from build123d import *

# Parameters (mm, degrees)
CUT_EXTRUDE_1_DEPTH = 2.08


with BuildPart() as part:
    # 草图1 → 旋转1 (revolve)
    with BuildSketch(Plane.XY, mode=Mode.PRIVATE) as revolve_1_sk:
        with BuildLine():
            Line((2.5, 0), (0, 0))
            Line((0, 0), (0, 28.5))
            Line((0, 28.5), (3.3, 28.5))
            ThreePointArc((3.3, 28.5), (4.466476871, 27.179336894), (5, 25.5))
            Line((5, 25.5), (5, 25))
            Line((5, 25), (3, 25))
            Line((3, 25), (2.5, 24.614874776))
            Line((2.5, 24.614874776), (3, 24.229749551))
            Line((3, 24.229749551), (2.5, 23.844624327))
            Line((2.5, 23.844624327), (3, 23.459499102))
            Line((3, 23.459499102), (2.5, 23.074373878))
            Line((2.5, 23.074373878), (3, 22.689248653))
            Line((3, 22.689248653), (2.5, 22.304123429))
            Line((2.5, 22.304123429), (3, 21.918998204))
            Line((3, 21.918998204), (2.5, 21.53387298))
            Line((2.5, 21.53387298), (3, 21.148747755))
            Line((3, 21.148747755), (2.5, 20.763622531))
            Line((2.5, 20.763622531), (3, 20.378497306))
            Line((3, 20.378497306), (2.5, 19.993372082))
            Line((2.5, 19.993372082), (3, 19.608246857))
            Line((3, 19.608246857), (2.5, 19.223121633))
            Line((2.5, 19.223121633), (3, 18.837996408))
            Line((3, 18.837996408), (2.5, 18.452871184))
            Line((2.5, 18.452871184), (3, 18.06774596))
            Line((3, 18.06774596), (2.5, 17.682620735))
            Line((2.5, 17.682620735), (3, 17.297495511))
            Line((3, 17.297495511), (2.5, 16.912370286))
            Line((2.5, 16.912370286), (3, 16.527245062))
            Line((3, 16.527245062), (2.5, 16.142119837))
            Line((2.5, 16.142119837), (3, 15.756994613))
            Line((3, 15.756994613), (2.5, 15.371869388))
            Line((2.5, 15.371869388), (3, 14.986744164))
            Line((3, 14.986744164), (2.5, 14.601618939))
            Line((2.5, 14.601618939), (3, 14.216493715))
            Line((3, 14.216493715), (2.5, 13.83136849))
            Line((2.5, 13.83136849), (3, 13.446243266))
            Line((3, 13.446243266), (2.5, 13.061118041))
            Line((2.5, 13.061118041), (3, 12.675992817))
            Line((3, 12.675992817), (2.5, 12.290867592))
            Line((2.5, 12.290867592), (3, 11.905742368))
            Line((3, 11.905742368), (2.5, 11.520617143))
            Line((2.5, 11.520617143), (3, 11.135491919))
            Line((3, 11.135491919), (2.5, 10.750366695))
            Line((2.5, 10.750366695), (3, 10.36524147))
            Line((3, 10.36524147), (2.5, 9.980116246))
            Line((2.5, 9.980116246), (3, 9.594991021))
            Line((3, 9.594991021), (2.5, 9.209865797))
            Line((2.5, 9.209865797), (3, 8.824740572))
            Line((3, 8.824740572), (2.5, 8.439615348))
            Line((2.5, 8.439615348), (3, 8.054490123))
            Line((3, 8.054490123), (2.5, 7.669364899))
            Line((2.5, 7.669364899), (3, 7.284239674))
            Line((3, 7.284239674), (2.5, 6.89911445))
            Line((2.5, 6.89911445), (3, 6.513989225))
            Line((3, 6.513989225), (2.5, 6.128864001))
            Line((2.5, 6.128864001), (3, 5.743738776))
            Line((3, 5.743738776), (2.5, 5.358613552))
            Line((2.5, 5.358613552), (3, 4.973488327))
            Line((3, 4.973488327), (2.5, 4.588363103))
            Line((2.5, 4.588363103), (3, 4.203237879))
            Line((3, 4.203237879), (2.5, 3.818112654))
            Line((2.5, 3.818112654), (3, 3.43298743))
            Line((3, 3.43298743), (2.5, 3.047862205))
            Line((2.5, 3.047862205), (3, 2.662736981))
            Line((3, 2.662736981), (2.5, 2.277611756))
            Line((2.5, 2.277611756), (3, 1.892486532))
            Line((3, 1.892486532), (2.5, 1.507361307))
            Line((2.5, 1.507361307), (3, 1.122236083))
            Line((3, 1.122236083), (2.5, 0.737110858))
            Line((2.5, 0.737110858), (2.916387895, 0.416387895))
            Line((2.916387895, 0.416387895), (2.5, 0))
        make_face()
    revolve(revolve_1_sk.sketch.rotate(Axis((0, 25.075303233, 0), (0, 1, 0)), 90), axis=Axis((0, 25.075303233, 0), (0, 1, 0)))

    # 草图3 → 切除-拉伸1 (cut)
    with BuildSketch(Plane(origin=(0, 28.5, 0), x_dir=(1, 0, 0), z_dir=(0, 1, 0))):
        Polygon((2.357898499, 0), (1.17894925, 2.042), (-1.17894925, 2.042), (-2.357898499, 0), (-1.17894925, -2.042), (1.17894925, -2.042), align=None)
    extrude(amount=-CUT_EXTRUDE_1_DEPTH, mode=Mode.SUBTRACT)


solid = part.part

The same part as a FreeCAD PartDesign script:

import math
import FreeCAD as App
import Part
import Sketcher
Q = App.Units.Quantity


def add_polygon(sketch, points):
    """Adds a closed chain of lines whose ends are joined by coincident constraints."""
    first, n = sketch.GeometryCount, len(points)
    for a, b in zip(points, points[1:] + points[:1]):
        sketch.addGeometry(Part.LineSegment(App.Vector(*a, 0), App.Vector(*b, 0)), False)
    for i in range(n):
        sketch.addConstraint(Sketcher.Constraint("Coincident", first + i, 2, first + (i + 1) % n, 1))

doc = App.newDocument("Part")
params = doc.addObject("Spreadsheet::Sheet", "Params")
for row, (alias, value) in enumerate([
    ("sketch1_width", "2 mm"),
    ("sketch1_width2", "2.5 mm"),
    ("sketch1_width3", "3.3 mm"),
    ("sketch1_height", "0.5 mm"),
    ("sketch1_height2", "28.5 mm"),
    ("revolution_angle", "360 deg"),
    ("pocket1_length", "2.08 mm"),
], start=1):
    params.set(f"A{row}", alias)
    params.set(f"B{row}", "=" + value)
    params.setAlias(f"B{row}", alias)

body = doc.addObject("PartDesign::Body", "Body")

# Sketch on XY plane
sketch1 = doc.addObject("Sketcher::SketchObject", "Sketch")
body.addObject(sketch1)
sketch1.AttachmentSupport = (doc.XY_Plane, [""])
sketch1.MapMode = "FlatFace"
sketch1.addGeometry([
    Part.LineSegment(App.Vector(0, 0, 0), App.Vector(2.5, 0, 0)),  # 0
    Part.LineSegment(App.Vector(2.5, 0, 0), App.Vector(2.9, 0.4, 0)),  # 1
    Part.LineSegment(App.Vector(2.9, 0.4, 0), App.Vector(2.5, 0.7, 0)),  # 2
    Part.LineSegment(App.Vector(2.5, 0.7, 0), App.Vector(3, 1.1, 0)),  # 3
    Part.LineSegment(App.Vector(3, 1.1, 0), App.Vector(2.5, 1.5, 0)),  # 4
    Part.LineSegment(App.Vector(2.5, 1.5, 0), App.Vector(3, 1.9, 0)),  # 5
    Part.LineSegment(App.Vector(3, 1.9, 0), App.Vector(2.5, 2.3, 0)),  # 6
    Part.LineSegment(App.Vector(2.5, 2.3, 0), App.Vector(3, 2.7, 0)),  # 7
    Part.LineSegment(App.Vector(3, 2.7, 0), App.Vector(2.5, 3, 0)),  # 8
    Part.LineSegment(App.Vector(2.5, 3, 0), App.Vector(3, 3.4, 0)),  # 9
    Part.LineSegment(App.Vector(3, 3.4, 0), App.Vector(2.5, 3.8, 0)),  # 10
    Part.LineSegment(App.Vector(2.5, 3.8, 0), App.Vector(3, 4.2, 0)),  # 11
    Part.LineSegment(App.Vector(3, 4.2, 0), App.Vector(2.5, 4.6, 0)),  # 12
    Part.LineSegment(App.Vector(2.5, 4.6, 0), App.Vector(3, 5, 0)),  # 13
    Part.LineSegment(App.Vector(3, 5, 0), App.Vector(2.5, 5.4, 0)),  # 14
    Part.LineSegment(App.Vector(2.5, 5.4, 0), App.Vector(3, 5.7, 0)),  # 15
    Part.LineSegment(App.Vector(3, 5.7, 0), App.Vector(2.5, 6.1, 0)),  # 16
    Part.LineSegment(App.Vector(2.5, 6.1, 0), App.Vector(3, 6.5, 0)),  # 17
    Part.LineSegment(App.Vector(3, 6.5, 0), App.Vector(2.5, 6.9, 0)),  # 18
    Part.LineSegment(App.Vector(2.5, 6.9, 0), App.Vector(3, 7.3, 0)),  # 19
    Part.LineSegment(App.Vector(3, 7.3, 0), App.Vector(2.5, 7.7, 0)),  # 20
    Part.LineSegment(App.Vector(2.5, 7.7, 0), App.Vector(3, 8.1, 0)),  # 21
    Part.LineSegment(App.Vector(3, 8.1, 0), App.Vector(2.5, 8.4, 0)),  # 22
    Part.LineSegment(App.Vector(2.5, 8.4, 0), App.Vector(3, 8.8, 0)),  # 23
    Part.LineSegment(App.Vector(3, 8.8, 0), App.Vector(2.5, 9.2, 0)),  # 24
    Part.LineSegment(App.Vector(2.5, 9.2, 0), App.Vector(3, 9.6, 0)),  # 25
    Part.LineSegment(App.Vector(3, 9.6, 0), App.Vector(2.5, 10, 0)),  # 26
    Part.LineSegment(App.Vector(2.5, 10, 0), App.Vector(3, 10.4, 0)),  # 27
    Part.LineSegment(App.Vector(3, 10.4, 0), App.Vector(2.5, 10.8, 0)),  # 28
    Part.LineSegment(App.Vector(2.5, 10.8, 0), App.Vector(3, 11.1, 0)),  # 29
    Part.LineSegment(App.Vector(3, 11.1, 0), App.Vector(2.5, 11.5, 0)),  # 30
    Part.LineSegment(App.Vector(2.5, 11.5, 0), App.Vector(3, 11.9, 0)),  # 31
    Part.LineSegment(App.Vector(3, 11.9, 0), App.Vector(2.5, 12.3, 0)),  # 32
    Part.LineSegment(App.Vector(2.5, 12.3, 0), App.Vector(3, 12.7, 0)),  # 33
    Part.LineSegment(App.Vector(3, 12.7, 0), App.Vector(2.5, 13.1, 0)),  # 34
    Part.LineSegment(App.Vector(2.5, 13.1, 0), App.Vector(3, 13.4, 0)),  # 35
    Part.LineSegment(App.Vector(3, 13.4, 0), App.Vector(2.5, 13.8, 0)),  # 36
    Part.LineSegment(App.Vector(2.5, 13.8, 0), App.Vector(3, 14.2, 0)),  # 37
    Part.LineSegment(App.Vector(3, 14.2, 0), App.Vector(2.5, 14.6, 0)),  # 38
    Part.LineSegment(App.Vector(2.5, 14.6, 0), App.Vector(3, 15, 0)),  # 39
    Part.LineSegment(App.Vector(3, 15, 0), App.Vector(2.5, 15.4, 0)),  # 40
    Part.LineSegment(App.Vector(2.5, 15.4, 0), App.Vector(3, 15.8, 0)),  # 41
    Part.LineSegment(App.Vector(3, 15.8, 0), App.Vector(2.5, 16.1, 0)),  # 42
    Part.LineSegment(App.Vector(2.5, 16.1, 0), App.Vector(3, 16.5, 0)),  # 43
    Part.LineSegment(App.Vector(3, 16.5, 0), App.Vector(2.5, 16.9, 0)),  # 44
    Part.LineSegment(App.Vector(2.5, 16.9, 0), App.Vector(3, 17.3, 0)),  # 45
    Part.LineSegment(App.Vector(3, 17.3, 0), App.Vector(2.5, 17.7, 0)),  # 46
    Part.LineSegment(App.Vector(2.5, 17.7, 0), App.Vector(3, 18.1, 0)),  # 47
    Part.LineSegment(App.Vector(3, 18.1, 0), App.Vector(2.5, 18.5, 0)),  # 48
    Part.LineSegment(App.Vector(2.5, 18.5, 0), App.Vector(3, 18.8, 0)),  # 49
    Part.LineSegment(App.Vector(3, 18.8, 0), App.Vector(2.5, 19.2, 0)),  # 50
    Part.LineSegment(App.Vector(2.5, 19.2, 0), App.Vector(3, 19.6, 0)),  # 51
    Part.LineSegment(App.Vector(3, 19.6, 0), App.Vector(2.5, 20, 0)),  # 52
    Part.LineSegment(App.Vector(2.5, 20, 0), App.Vector(3, 20.4, 0)),  # 53
    Part.LineSegment(App.Vector(3, 20.4, 0), App.Vector(2.5, 20.8, 0)),  # 54
    Part.LineSegment(App.Vector(2.5, 20.8, 0), App.Vector(3, 21.1, 0)),  # 55
    Part.LineSegment(App.Vector(3, 21.1, 0), App.Vector(2.5, 21.5, 0)),  # 56
    Part.LineSegment(App.Vector(2.5, 21.5, 0), App.Vector(3, 21.9, 0)),  # 57
    Part.LineSegment(App.Vector(3, 21.9, 0), App.Vector(2.5, 22.3, 0)),  # 58
    Part.LineSegment(App.Vector(2.5, 22.3, 0), App.Vector(3, 22.7, 0)),  # 59
    Part.LineSegment(App.Vector(3, 22.7, 0), App.Vector(2.5, 23.1, 0)),  # 60
    Part.LineSegment(App.Vector(2.5, 23.1, 0), App.Vector(3, 23.5, 0)),  # 61
    Part.LineSegment(App.Vector(3, 23.5, 0), App.Vector(2.5, 23.8, 0)),  # 62
    Part.LineSegment(App.Vector(2.5, 23.8, 0), App.Vector(3, 24.2, 0)),  # 63
    Part.LineSegment(App.Vector(3, 24.2, 0), App.Vector(2.5, 24.6, 0)),  # 64
    Part.LineSegment(App.Vector(2.5, 24.6, 0), App.Vector(3, 25, 0)),  # 65
    Part.LineSegment(App.Vector(3, 25, 0), App.Vector(5, 25, 0)),  # 66
    Part.LineSegment(App.Vector(5, 25, 0), App.Vector(5, 25.5, 0)),  # 67
    Part.ArcOfCircle(Part.Circle(App.Vector(0.8, 25.1, 0), App.Vector(0, 0, 1), 4.3), math.radians(6), math.radians(53)),  # 68
    Part.LineSegment(App.Vector(3.3, 28.5, 0), App.Vector(0, 28.5, 0)),  # 69
    Part.LineSegment(App.Vector(0, 28.5, 0), App.Vector(0, 0, 0)),  # 70
], False)
sketch1.addConstraint([
    Sketcher.Constraint("Coincident", 0, 2, 1, 1),
    Sketcher.Constraint("Coincident", 1, 2, 2, 1),
    Sketcher.Constraint("Coincident", 2, 2, 3, 1),
    Sketcher.Constraint("Coincident", 3, 2, 4, 1),
    Sketcher.Constraint("Coincident", 4, 2, 5, 1),
    Sketcher.Constraint("Coincident", 5, 2, 6, 1),
    Sketcher.Constraint("Coincident", 6, 2, 7, 1),
    Sketcher.Constraint("Coincident", 7, 2, 8, 1),
    Sketcher.Constraint("Coincident", 8, 2, 9, 1),
    Sketcher.Constraint("Coincident", 9, 2, 10, 1),
    Sketcher.Constraint("Coincident", 10, 2, 11, 1),
    Sketcher.Constraint("Coincident", 11, 2, 12, 1),
    Sketcher.Constraint("Coincident", 12, 2, 13, 1),
    Sketcher.Constraint("Coincident", 13, 2, 14, 1),
    Sketcher.Constraint("Coincident", 14, 2, 15, 1),
    Sketcher.Constraint("Coincident", 15, 2, 16, 1),
    Sketcher.Constraint("Coincident", 16, 2, 17, 1),
    Sketcher.Constraint("Coincident", 17, 2, 18, 1),
    Sketcher.Constraint("Coincident", 18, 2, 19, 1),
    Sketcher.Constraint("Coincident", 19, 2, 20, 1),
    Sketcher.Constraint("Coincident", 20, 2, 21, 1),
    Sketcher.Constraint("Coincident", 21, 2, 22, 1),
    Sketcher.Constraint("Coincident", 22, 2, 23, 1),
    Sketcher.Constraint("Coincident", 23, 2, 24, 1),
    Sketcher.Constraint("Coincident", 24, 2, 25, 1),
    Sketcher.Constraint("Coincident", 25, 2, 26, 1),
    Sketcher.Constraint("Coincident", 26, 2, 27, 1),
    Sketcher.Constraint("Coincident", 27, 2, 28, 1),
    Sketcher.Constraint("Coincident", 28, 2, 29, 1),
    Sketcher.Constraint("Coincident", 29, 2, 30, 1),
    Sketcher.Constraint("Coincident", 30, 2, 31, 1),
    Sketcher.Constraint("Coincident", 31, 2, 32, 1),
    Sketcher.Constraint("Coincident", 32, 2, 33, 1),
    Sketcher.Constraint("Coincident", 33, 2, 34, 1),
    Sketcher.Constraint("Coincident", 34, 2, 35, 1),
    Sketcher.Constraint("Coincident", 35, 2, 36, 1),
    Sketcher.Constraint("Coincident", 36, 2, 37, 1),
    Sketcher.Constraint("Coincident", 37, 2, 38, 1),
    Sketcher.Constraint("Coincident", 38, 2, 39, 1),
    Sketcher.Constraint("Coincident", 39, 2, 40, 1),
    Sketcher.Constraint("Coincident", 40, 2, 41, 1),
    Sketcher.Constraint("Coincident", 41, 2, 42, 1),
    Sketcher.Constraint("Coincident", 42, 2, 43, 1),
    Sketcher.Constraint("Coincident", 43, 2, 44, 1),
    Sketcher.Constraint("Coincident", 44, 2, 45, 1),
    Sketcher.Constraint("Coincident", 45, 2, 46, 1),
    Sketcher.Constraint("Coincident", 46, 2, 47, 1),
    Sketcher.Constraint("Coincident", 47, 2, 48, 1),
    Sketcher.Constraint("Coincident", 48, 2, 49, 1),
    Sketcher.Constraint("Coincident", 49, 2, 50, 1),
    Sketcher.Constraint("Coincident", 50, 2, 51, 1),
    Sketcher.Constraint("Coincident", 51, 2, 52, 1),
    Sketcher.Constraint("Coincident", 52, 2, 53, 1),
    Sketcher.Constraint("Coincident", 53, 2, 54, 1),
    Sketcher.Constraint("Coincident", 54, 2, 55, 1),
    Sketcher.Constraint("Coincident", 55, 2, 56, 1),
    Sketcher.Constraint("Coincident", 56, 2, 57, 1),
    Sketcher.Constraint("Coincident", 57, 2, 58, 1),
    Sketcher.Constraint("Coincident", 58, 2, 59, 1),
    Sketcher.Constraint("Coincident", 59, 2, 60, 1),
    Sketcher.Constraint("Coincident", 60, 2, 61, 1),
    Sketcher.Constraint("Coincident", 61, 2, 62, 1),
    Sketcher.Constraint("Coincident", 62, 2, 63, 1),
    Sketcher.Constraint("Coincident", 63, 2, 64, 1),
    Sketcher.Constraint("Coincident", 64, 2, 65, 1),
    Sketcher.Constraint("Coincident", 65, 2, 66, 1),
    Sketcher.Constraint("Coincident", 66, 2, 67, 1),
    Sketcher.Constraint("Coincident", 67, 2, 68, 1),
    Sketcher.Constraint("Coincident", 68, 2, 69, 1),
    Sketcher.Constraint("Coincident", 69, 2, 70, 1),
    Sketcher.Constraint("Coincident", 70, 2, 0, 1),
    Sketcher.Constraint("Horizontal", 0),
    Sketcher.Constraint("Horizontal", 66),
    Sketcher.Constraint("Vertical", 67),
    Sketcher.Constraint("Horizontal", 69),
    Sketcher.Constraint("Vertical", 70),
    Sketcher.Constraint("Coincident", 70, 2, -1, 1),
    Sketcher.Constraint("Parallel", 2, 4),
    Sketcher.Constraint("Parallel", 3, 5),
    Sketcher.Constraint("Parallel", 4, 6),
    Sketcher.Constraint("Parallel", 5, 7),
    Sketcher.Constraint("Parallel", 6, 8),
    Sketcher.Constraint("Parallel", 7, 9),
    Sketcher.Constraint("Parallel", 8, 10),
    Sketcher.Constraint("Parallel", 9, 11),
    Sketcher.Constraint("Parallel", 10, 12),
    Sketcher.Constraint("Parallel", 11, 13),
    Sketcher.Constraint("Parallel", 12, 14),
    Sketcher.Constraint("Parallel", 13, 15),
    Sketcher.Constraint("Parallel", 14, 16),
    Sketcher.Constraint("Parallel", 15, 17),
    Sketcher.Constraint("Parallel", 16, 18),
    Sketcher.Constraint("Parallel", 17, 19),
    Sketcher.Constraint("Parallel", 18, 20),
    Sketcher.Constraint("Parallel", 19, 21),
    Sketcher.Constraint("Parallel", 20, 22),
    Sketcher.Constraint("Parallel", 21, 23),
    Sketcher.Constraint("Parallel", 22, 24),
    Sketcher.Constraint("Parallel", 23, 25),
    Sketcher.Constraint("Parallel", 24, 26),
    Sketcher.Constraint("Parallel", 25, 27),
    Sketcher.Constraint("Parallel", 26, 28),
    Sketcher.Constraint("Parallel", 27, 29),
    Sketcher.Constraint("Parallel", 28, 30),
    Sketcher.Constraint("Parallel", 29, 31),
    Sketcher.Constraint("Parallel", 30, 32),
    Sketcher.Constraint("Parallel", 31, 33),
    Sketcher.Constraint("Parallel", 32, 34),
    Sketcher.Constraint("Parallel", 33, 35),
    Sketcher.Constraint("Parallel", 34, 36),
    Sketcher.Constraint("Parallel", 35, 37),
    Sketcher.Constraint("Parallel", 36, 38),
    Sketcher.Constraint("Parallel", 37, 39),
    Sketcher.Constraint("Parallel", 38, 40),
    Sketcher.Constraint("Parallel", 39, 41),
    Sketcher.Constraint("Parallel", 40, 42),
    Sketcher.Constraint("Parallel", 41, 43),
    Sketcher.Constraint("Parallel", 42, 44),
    Sketcher.Constraint("Parallel", 43, 45),
    Sketcher.Constraint("Parallel", 44, 46),
    Sketcher.Constraint("Parallel", 45, 47),
    Sketcher.Constraint("Parallel", 46, 48),
    Sketcher.Constraint("Parallel", 47, 49),
    Sketcher.Constraint("Parallel", 48, 50),
    Sketcher.Constraint("Parallel", 49, 51),
    Sketcher.Constraint("Parallel", 50, 52),
    Sketcher.Constraint("Parallel", 51, 53),
    Sketcher.Constraint("Parallel", 52, 54),
    Sketcher.Constraint("Parallel", 53, 55),
    Sketcher.Constraint("Parallel", 54, 56),
    Sketcher.Constraint("Parallel", 55, 57),
    Sketcher.Constraint("Parallel", 56, 58),
    Sketcher.Constraint("Parallel", 57, 59),
    Sketcher.Constraint("Parallel", 58, 60),
    Sketcher.Constraint("Parallel", 59, 61),
    Sketcher.Constraint("Parallel", 60, 62),
    Sketcher.Constraint("Parallel", 61, 63),
    Sketcher.Constraint("Parallel", 62, 64),
    Sketcher.Constraint("Parallel", 63, 65),
    Sketcher.Constraint("Vertical", 0, 2, 2, 2),
    Sketcher.Constraint("Vertical", 2, 2, 4, 2),
    Sketcher.Constraint("Vertical", 3, 2, 5, 2),
    Sketcher.Constraint("Vertical", 4, 2, 6, 2),
    Sketcher.Constraint("Vertical", 5, 2, 7, 2),
    Sketcher.Constraint("Vertical", 6, 2, 8, 2),
    Sketcher.Constraint("Vertical", 7, 2, 9, 2),
    Sketcher.Constraint("Vertical", 8, 2, 10, 2),
    Sketcher.Constraint("Vertical", 9, 2, 11, 2),
    Sketcher.Constraint("Vertical", 10, 2, 12, 2),
    Sketcher.Constraint("Vertical", 11, 2, 13, 2),
    Sketcher.Constraint("Vertical", 12, 2, 14, 2),
    Sketcher.Constraint("Vertical", 13, 2, 15, 2),
    Sketcher.Constraint("Vertical", 14, 2, 16, 2),
    Sketcher.Constraint("Vertical", 15, 2, 17, 2),
    Sketcher.Constraint("Vertical", 16, 2, 18, 2),
    Sketcher.Constraint("Vertical", 17, 2, 19, 2),
    Sketcher.Constraint("Vertical", 18, 2, 20, 2),
    Sketcher.Constraint("Vertical", 19, 2, 21, 2),
    Sketcher.Constraint("Vertical", 20, 2, 22, 2),
    Sketcher.Constraint("Vertical", 21, 2, 23, 2),
    Sketcher.Constraint("Vertical", 22, 2, 24, 2),
    Sketcher.Constraint("Vertical", 23, 2, 25, 2),
    Sketcher.Constraint("Vertical", 24, 2, 26, 2),
    Sketcher.Constraint("Vertical", 25, 2, 27, 2),
    Sketcher.Constraint("Vertical", 26, 2, 28, 2),
    Sketcher.Constraint("Vertical", 27, 2, 29, 2),
    Sketcher.Constraint("Vertical", 28, 2, 30, 2),
    Sketcher.Constraint("Vertical", 29, 2, 31, 2),
    Sketcher.Constraint("Vertical", 30, 2, 32, 2),
    Sketcher.Constraint("Vertical", 31, 2, 33, 2),
    Sketcher.Constraint("Vertical", 32, 2, 34, 2),
    Sketcher.Constraint("Vertical", 33, 2, 35, 2),
    Sketcher.Constraint("Vertical", 34, 2, 36, 2),
    Sketcher.Constraint("Vertical", 35, 2, 37, 2),
    Sketcher.Constraint("Vertical", 36, 2, 38, 2),
    Sketcher.Constraint("Vertical", 37, 2, 39, 2),
    Sketcher.Constraint("Vertical", 38, 2, 40, 2),
    Sketcher.Constraint("Vertical", 39, 2, 41, 2),
    Sketcher.Constraint("Vertical", 40, 2, 42, 2),
    Sketcher.Constraint("Vertical", 41, 2, 43, 2),
    Sketcher.Constraint("Vertical", 42, 2, 44, 2),
    Sketcher.Constraint("Vertical", 43, 2, 45, 2),
    Sketcher.Constraint("Vertical", 44, 2, 46, 2),
    Sketcher.Constraint("Vertical", 45, 2, 47, 2),
    Sketcher.Constraint("Vertical", 46, 2, 48, 2),
    Sketcher.Constraint("Vertical", 47, 2, 49, 2),
    Sketcher.Constraint("Vertical", 48, 2, 50, 2),
    Sketcher.Constraint("Vertical", 49, 2, 51, 2),
    Sketcher.Constraint("Vertical", 50, 2, 52, 2),
    Sketcher.Constraint("Vertical", 51, 2, 53, 2),
    Sketcher.Constraint("Vertical", 52, 2, 54, 2),
    Sketcher.Constraint("Vertical", 53, 2, 55, 2),
    Sketcher.Constraint("Vertical", 54, 2, 56, 2),
    Sketcher.Constraint("Vertical", 55, 2, 57, 2),
    Sketcher.Constraint("Vertical", 56, 2, 58, 2),
    Sketcher.Constraint("Vertical", 57, 2, 59, 2),
    Sketcher.Constraint("Vertical", 58, 2, 60, 2),
    Sketcher.Constraint("Vertical", 59, 2, 61, 2),
    Sketcher.Constraint("Vertical", 60, 2, 62, 2),
    Sketcher.Constraint("Vertical", 61, 2, 63, 2),
    Sketcher.Constraint("Vertical", 62, 2, 64, 2),
    Sketcher.Constraint("Vertical", 63, 2, 65, 2),
    Sketcher.Constraint("Equal", 3, 4),
    Sketcher.Constraint("DistanceX", 66, 1, 66, 2, Q("2 mm")),
    Sketcher.Constraint("Angle", 1, Q("45 deg")),
    Sketcher.Constraint("DistanceX", 0, 1, 0, 2, Q("2.5 mm")),
    Sketcher.Constraint("DistanceX", 69, 2, 69, 1, Q("3.3 mm")),
    Sketcher.Constraint("DistanceY", 67, 1, 67, 2, Q("0.5 mm")),
    Sketcher.Constraint("DistanceY", 70, 2, 70, 1, Q("28.5 mm")),
    Sketcher.Constraint("DistanceX", -1, 1, 3, 2, Q("3 mm")),
    Sketcher.Constraint("DistanceY", -1, 1, 65, 2, Q("25 mm")),
    Sketcher.Constraint("DistanceY", -1, 1, 57, 2, Q("21.918998 mm")),
    Sketcher.Constraint("Radius", 68, Q("4.267708 mm")),
])
sketch1.setExpression("Constraints[203]", "Params.sketch1_width")
sketch1.setExpression("Constraints[205]", "Params.sketch1_width2")
sketch1.setExpression("Constraints[206]", "Params.sketch1_width3")
sketch1.setExpression("Constraints[207]", "Params.sketch1_height")
sketch1.setExpression("Constraints[208]", "Params.sketch1_height2")
revolution = doc.addObject("PartDesign::Revolution", "Revolution")
body.addObject(revolution)
revolution.Profile = sketch1
revolution.ReferenceAxis = (sketch1, ["V_Axis"])
revolution.setExpression("Angle", "Params.revolution_angle")

# Sketch on XZ plane
sketch2 = doc.addObject("Sketcher::SketchObject", "Sketch001")
body.addObject(sketch2)
sketch2.AttachmentSupport = (doc.XZ_Plane, [""])
sketch2.MapMode = "FlatFace"
sketch2.AttachmentOffset = App.Placement(App.Vector(0, 0, -28.5), App.Rotation())
add_polygon(sketch2, [(2.4, 0), (1.2, -2), (-1.2, -2), (-2.4, 0), (-1.2, 2), (1.2, 2)])  # lines 0-5
sketch2.addConstraint([
    Sketcher.Constraint("Horizontal", 1),
    Sketcher.Constraint("Horizontal", 4),
    Sketcher.Constraint("Symmetric", 0, 2, 3, 2, -1, 1),
    Sketcher.Constraint("Symmetric", 2, 2, 5, 2, -1, 1),
    Sketcher.Constraint("PointOnObject", 2, 2, -1),
    Sketcher.Constraint("Parallel", 2, 5),
    Sketcher.Constraint("Vertical", 1, 2, 3, 2),
    Sketcher.Constraint("Angle", 0, Q("-120 deg")),
    Sketcher.Constraint("DistanceX", 1, 2, 1, 1, Q("2.357899 mm")),
    Sketcher.Constraint("DistanceY", 0, 2, -1, 1, Q("2.042 mm")),
])
pocket1 = doc.addObject("PartDesign::Pocket", "Pocket")
body.addObject(pocket1)
pocket1.Profile = sketch2
pocket1.setExpression("Length", "Params.pocket1_length")
pocket1.Reversed = True

doc.recompute()
